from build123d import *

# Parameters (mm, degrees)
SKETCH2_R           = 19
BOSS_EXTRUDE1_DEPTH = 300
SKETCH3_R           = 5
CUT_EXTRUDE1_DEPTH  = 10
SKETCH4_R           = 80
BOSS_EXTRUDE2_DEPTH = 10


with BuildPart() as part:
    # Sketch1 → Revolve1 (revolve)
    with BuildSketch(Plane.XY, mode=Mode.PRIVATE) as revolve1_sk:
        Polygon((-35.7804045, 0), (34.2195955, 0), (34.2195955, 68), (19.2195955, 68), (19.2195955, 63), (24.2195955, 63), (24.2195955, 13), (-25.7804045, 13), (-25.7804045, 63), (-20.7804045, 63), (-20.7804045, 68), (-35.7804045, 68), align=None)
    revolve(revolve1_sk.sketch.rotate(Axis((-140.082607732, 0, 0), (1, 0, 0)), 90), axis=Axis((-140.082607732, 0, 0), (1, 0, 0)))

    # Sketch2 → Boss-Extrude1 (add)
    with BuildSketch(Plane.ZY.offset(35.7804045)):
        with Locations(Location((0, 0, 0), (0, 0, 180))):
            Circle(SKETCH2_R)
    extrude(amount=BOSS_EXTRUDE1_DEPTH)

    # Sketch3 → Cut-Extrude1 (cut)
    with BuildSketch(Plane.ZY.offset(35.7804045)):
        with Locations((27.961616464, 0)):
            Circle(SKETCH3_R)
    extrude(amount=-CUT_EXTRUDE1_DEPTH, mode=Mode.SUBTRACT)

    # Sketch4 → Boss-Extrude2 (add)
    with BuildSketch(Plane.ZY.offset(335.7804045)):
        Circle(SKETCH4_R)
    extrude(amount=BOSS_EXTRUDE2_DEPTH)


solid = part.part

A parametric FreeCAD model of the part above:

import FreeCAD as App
import Part
import Sketcher
from FreeCAD import Vector
Q = App.Units.Quantity

doc = App.newDocument("Part")
body = doc.addObject("PartDesign::Body", "Body")

sketch1 = body.newObject("Sketcher::SketchObject", "Sketch")
sketch1.AttachmentSupport = (doc.getObject("XY_Plane"), [""])
sketch1.MapMode = "FlatFace"
sketch1.addGeometry([
    Part.LineSegment(Vector(-36, 0, 0), Vector(34, 0, 0)),
    Part.LineSegment(Vector(34, 0, 0), Vector(34, 68, 0)),
    Part.LineSegment(Vector(34, 68, 0), Vector(19, 68, 0)),
    Part.LineSegment(Vector(19, 68, 0), Vector(19, 63, 0)),
    Part.LineSegment(Vector(19, 63, 0), Vector(24, 63, 0)),
    Part.LineSegment(Vector(24, 63, 0), Vector(24, 13, 0)),
    Part.LineSegment(Vector(24, 13, 0), Vector(-26, 13, 0)),
    Part.LineSegment(Vector(-26, 13, 0), Vector(-26, 63, 0)),
    Part.LineSegment(Vector(-26, 63, 0), Vector(-21, 63, 0)),
    Part.LineSegment(Vector(-21, 63, 0), Vector(-21, 68, 0)),
    Part.LineSegment(Vector(-21, 68, 0), Vector(-36, 68, 0)),
    Part.LineSegment(Vector(-36, 68, 0), Vector(-36, 0, 0)),
], False)
sketch1.addConstraint([
    Sketcher.Constraint("Coincident", 0, 2, 1, 1),
    Sketcher.Constraint("Coincident", 1, 2, 2, 1),
    Sketcher.Constraint("Coincident", 2, 2, 3, 1),
    Sketcher.Constraint("Coincident", 3, 2, 4, 1),
    Sketcher.Constraint("Coincident", 4, 2, 5, 1),
    Sketcher.Constraint("Coincident", 5, 2, 6, 1),
    Sketcher.Constraint("Coincident", 6, 2, 7, 1),
    Sketcher.Constraint("Coincident", 7, 2, 8, 1),
    Sketcher.Constraint("Coincident", 8, 2, 9, 1),
    Sketcher.Constraint("Coincident", 9, 2, 10, 1),
    Sketcher.Constraint("Coincident", 10, 2, 11, 1),
    Sketcher.Constraint("Coincident", 11, 2, 0, 1),
    Sketcher.Constraint("Horizontal", 0),
    Sketcher.Constraint("Vertical", 1),
    Sketcher.Constraint("Horizontal", 2),
    Sketcher.Constraint("Vertical", 3),
    Sketcher.Constraint("Horizontal", 4),
    Sketcher.Constraint("Vertical", 5),
    Sketcher.Constraint("Horizontal", 6),
    Sketcher.Constraint("Vertical", 7),
    Sketcher.Constraint("Horizontal", 8),
    Sketcher.Constraint("Vertical", 9),
    Sketcher.Constraint("Horizontal", 10),
    Sketcher.Constraint("Vertical", 11),
    Sketcher.Constraint("PointOnObject", 0, 2, -1),
    Sketcher.Constraint("Horizontal", 4, 2, 7, 2),
    Sketcher.Constraint("Horizontal", 2, 2, 9, 2),
    Sketcher.Constraint("Equal", 4, 8),
    Sketcher.Constraint("Equal", 2, 10),
    Sketcher.Constraint("Equal", 8, 3),
    Sketcher.Constraint("Equal", 6, 5),
    Sketcher.Constraint("DistanceX", 0, 1, 0, 2, Q("70 mm")),
    Sketcher.Constraint("DistanceX", 2, 2, 2, 1, Q("15 mm")),
    Sketcher.Constraint("DistanceX", 4, 1, 4, 2, Q("5 mm")),
    Sketcher.Constraint("DistanceY", 1, 1, 1, 2, Q("68 mm")),
    Sketcher.Constraint("DistanceX", -1, 1, 0, 2, Q("34.219595 mm")),
])
revolution = body.newObject("PartDesign::Revolution", "Revolution")
revolution.Profile = sketch1
revolution.ReferenceAxis = (sketch1, ["H_Axis"])
revolution.Angle = 360

sketch2 = body.newObject("Sketcher::SketchObject", "Sketch001")
sketch2.AttachmentSupport = (doc.getObject("YZ_Plane"), [""])
sketch2.MapMode = "FlatFace"
sketch2.AttachmentOffset = App.Placement(Vector(0, 0, -35.780405), App.Rotation())
sketch2.addGeometry(Part.Circle(Vector(0, 0, 0), Vector(0, 0, 1), 19), False)
sketch2.addConstraint([
    Sketcher.Constraint("Coincident", 0, 3, -1, 1),
    Sketcher.Constraint("Diameter", 0, Q("38 mm")),
])
pad1 = body.newObject("PartDesign::Pad", "Pad")
pad1.Profile = sketch2
pad1.Length = 300
pad1.Reversed = True

sketch3 = body.newObject("Sketcher::SketchObject", "Sketch002")
sketch3.AttachmentSupport = (doc.getObject("YZ_Plane"), [""])
sketch3.MapMode = "FlatFace"
sketch3.AttachmentOffset = App.Placement(Vector(0, 0, -35.780405), App.Rotation())
sketch3.addGeometry(Part.Circle(Vector(0, 28, 0), Vector(0, 0, 1), 5), False)
sketch3.addConstraint([
    Sketcher.Constraint("PointOnObject", 0, 3, -2),
    Sketcher.Constraint("Diameter", 0, Q("10 mm")),
    Sketcher.Constraint("DistanceY", -1, 1, 0, 3, Q("27.961616 mm")),
])
pocket1 = body.newObject("PartDesign::Pocket", "Pocket")
pocket1.Profile = sketch3
pocket1.Length = 10
pocket1.Reversed = True

sketch4 = body.newObject("Sketcher::SketchObject", "Sketch003")
sketch4.AttachmentSupport = (doc.getObject("YZ_Plane"), [""])
sketch4.MapMode = "FlatFace"
sketch4.AttachmentOffset = App.Placement(Vector(0, 0, -335.780404), App.Rotation())
sketch4.addGeometry(Part.Circle(Vector(0, 0, 0), Vector(0, 0, 1), 80), False)
sketch4.addConstraint([
    Sketcher.Constraint("Coincident", 0, 3, -1, 1),
    Sketcher.Constraint("Diameter", 0, Q("160 mm")),
])
pad2 = body.newObject("PartDesign::Pad", "Pad001")
pad2.Profile = sketch4
pad2.Length = 10
pad2.Reversed = True

doc.recompute()
